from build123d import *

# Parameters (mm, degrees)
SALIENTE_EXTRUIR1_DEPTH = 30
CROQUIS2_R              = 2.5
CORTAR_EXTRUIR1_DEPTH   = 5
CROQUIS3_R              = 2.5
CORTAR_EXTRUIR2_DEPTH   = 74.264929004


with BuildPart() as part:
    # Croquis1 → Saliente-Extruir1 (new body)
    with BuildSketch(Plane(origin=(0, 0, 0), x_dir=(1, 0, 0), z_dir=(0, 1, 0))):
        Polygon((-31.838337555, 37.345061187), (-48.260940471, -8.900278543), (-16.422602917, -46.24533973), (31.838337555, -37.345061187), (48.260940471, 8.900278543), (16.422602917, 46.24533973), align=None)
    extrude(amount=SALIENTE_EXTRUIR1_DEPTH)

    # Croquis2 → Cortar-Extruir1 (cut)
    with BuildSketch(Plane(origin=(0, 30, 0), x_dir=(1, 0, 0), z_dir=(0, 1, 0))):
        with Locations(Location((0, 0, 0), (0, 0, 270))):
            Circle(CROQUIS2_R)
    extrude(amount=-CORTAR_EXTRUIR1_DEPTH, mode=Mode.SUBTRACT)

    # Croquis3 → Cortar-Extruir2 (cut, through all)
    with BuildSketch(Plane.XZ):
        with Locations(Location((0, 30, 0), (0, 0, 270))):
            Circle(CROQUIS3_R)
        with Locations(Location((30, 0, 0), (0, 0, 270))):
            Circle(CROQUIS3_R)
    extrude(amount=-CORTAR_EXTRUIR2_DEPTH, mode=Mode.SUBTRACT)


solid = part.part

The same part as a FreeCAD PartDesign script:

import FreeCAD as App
import Part
import Sketcher

V = App.Vector

doc = App.newDocument("Part")
body = doc.addObject("PartDesign::Body", "Body")

sketch1 = doc.addObject("Sketcher::SketchObject", "Sketch")
body.addObject(sketch1)
sketch1.AttachmentSupport = (doc.XZ_Plane, [""])
sketch1.MapMode = "FlatFace"
sketch1.addGeometry([
    Part.LineSegment(V(-31.838338, -37.345061, 0), V(-48.26094, 8.900279, 0)),
    Part.LineSegment(V(-48.26094, 8.900279, 0), V(-16.422603, 46.24534, 0)),
    Part.LineSegment(V(-16.422603, 46.24534, 0), V(31.838338, 37.345061, 0)),
    Part.LineSegment(V(31.838338, 37.345061, 0), V(48.26094, -8.900279, 0)),
    Part.LineSegment(V(48.26094, -8.900279, 0), V(16.422603, -46.24534, 0)),
    Part.LineSegment(V(16.422603, -46.24534, 0), V(-31.838338, -37.345061, 0)),
], False)
sketch1.addConstraint([
    Sketcher.Constraint("Coincident", 0, 2, 1, 1),
    Sketcher.Constraint("Coincident", 1, 2, 2, 1),
    Sketcher.Constraint("Coincident", 2, 2, 3, 1),
    Sketcher.Constraint("Coincident", 3, 2, 4, 1),
    Sketcher.Constraint("Coincident", 4, 2, 5, 1),
    Sketcher.Constraint("Coincident", 5, 2, 0, 1),
    Sketcher.Constraint("Symmetric", 0, 2, 3, 2, -1, 1),
    Sketcher.Constraint("Symmetric", 1, 2, 4, 2, -1, 1),
    Sketcher.Constraint("Symmetric", 2, 2, 5, 2, -1, 1),
    Sketcher.Constraint("Equal", 0, 1),
    Sketcher.Constraint("Equal", 1, 2),
    Sketcher.Constraint("DistanceY", 4, 2, 2, 2, 83.590401),
    Sketcher.Constraint("DistanceX", 0, 2, -1, 1, 48.26094),
    Sketcher.Constraint("DistanceY", -1, 1, 0, 2, 8.900279),
    Sketcher.Constraint("DistanceY", -1, 1, 1, 2, 46.24534),
])
pad1 = doc.addObject("PartDesign::Pad", "Pad")
body.addObject(pad1)
pad1.Profile = sketch1
pad1.Length = 30
pad1.Reversed = True

sketch2 = doc.addObject("Sketcher::SketchObject", "Sketch001")
body.addObject(sketch2)
sketch2.AttachmentSupport = (doc.XZ_Plane, [""])
sketch2.MapMode = "FlatFace"
sketch2.AttachmentOffset = App.Placement(V(0, 0, -30), App.Rotation())
sketch2.addGeometry(Part.Circle(V(0, 0, 0), V(0, 0, 1), 2.5), False)
sketch2.addConstraint([
    Sketcher.Constraint("Coincident", 0, 3, -1, 1),
    Sketcher.Constraint("Diameter", 0, 5.0),
])
pocket1 = doc.addObject("PartDesign::Pocket", "Pocket")
body.addObject(pocket1)
pocket1.Profile = sketch2
pocket1.Length = 5
pocket1.Reversed = True

sketch3 = doc.addObject("Sketcher::SketchObject", "Sketch002")
body.addObject(sketch3)
sketch3.AttachmentSupport = (doc.XZ_Plane, [""])
sketch3.MapMode = "FlatFace"
sketch3.addGeometry([
    Part.Circle(V(0, 30, 0), V(0, 0, 1), 2.5),
    Part.Circle(V(30, 0, 0), V(0, 0, 1), 2.5),
], False)
sketch3.addConstraint([
    Sketcher.Constraint("Equal", 0, 1),
    Sketcher.Constraint("PointOnObject", 0, 3, -2),
    Sketcher.Constraint("PointOnObject", 1, 3, -1),
    Sketcher.Constraint("Diameter", 0, 5.0),
    Sketcher.Constraint("DistanceY", -1, 1, 0, 3, 30.0),
    Sketcher.Constraint("DistanceX", -1, 1, 1, 3, 30.0),
])
pocket2 = doc.addObject("PartDesign::Pocket", "Pocket001")
body.addObject(pocket2)
pocket2.Profile = sketch3
pocket2.Type = "ThroughAll"

doc.recompute()
